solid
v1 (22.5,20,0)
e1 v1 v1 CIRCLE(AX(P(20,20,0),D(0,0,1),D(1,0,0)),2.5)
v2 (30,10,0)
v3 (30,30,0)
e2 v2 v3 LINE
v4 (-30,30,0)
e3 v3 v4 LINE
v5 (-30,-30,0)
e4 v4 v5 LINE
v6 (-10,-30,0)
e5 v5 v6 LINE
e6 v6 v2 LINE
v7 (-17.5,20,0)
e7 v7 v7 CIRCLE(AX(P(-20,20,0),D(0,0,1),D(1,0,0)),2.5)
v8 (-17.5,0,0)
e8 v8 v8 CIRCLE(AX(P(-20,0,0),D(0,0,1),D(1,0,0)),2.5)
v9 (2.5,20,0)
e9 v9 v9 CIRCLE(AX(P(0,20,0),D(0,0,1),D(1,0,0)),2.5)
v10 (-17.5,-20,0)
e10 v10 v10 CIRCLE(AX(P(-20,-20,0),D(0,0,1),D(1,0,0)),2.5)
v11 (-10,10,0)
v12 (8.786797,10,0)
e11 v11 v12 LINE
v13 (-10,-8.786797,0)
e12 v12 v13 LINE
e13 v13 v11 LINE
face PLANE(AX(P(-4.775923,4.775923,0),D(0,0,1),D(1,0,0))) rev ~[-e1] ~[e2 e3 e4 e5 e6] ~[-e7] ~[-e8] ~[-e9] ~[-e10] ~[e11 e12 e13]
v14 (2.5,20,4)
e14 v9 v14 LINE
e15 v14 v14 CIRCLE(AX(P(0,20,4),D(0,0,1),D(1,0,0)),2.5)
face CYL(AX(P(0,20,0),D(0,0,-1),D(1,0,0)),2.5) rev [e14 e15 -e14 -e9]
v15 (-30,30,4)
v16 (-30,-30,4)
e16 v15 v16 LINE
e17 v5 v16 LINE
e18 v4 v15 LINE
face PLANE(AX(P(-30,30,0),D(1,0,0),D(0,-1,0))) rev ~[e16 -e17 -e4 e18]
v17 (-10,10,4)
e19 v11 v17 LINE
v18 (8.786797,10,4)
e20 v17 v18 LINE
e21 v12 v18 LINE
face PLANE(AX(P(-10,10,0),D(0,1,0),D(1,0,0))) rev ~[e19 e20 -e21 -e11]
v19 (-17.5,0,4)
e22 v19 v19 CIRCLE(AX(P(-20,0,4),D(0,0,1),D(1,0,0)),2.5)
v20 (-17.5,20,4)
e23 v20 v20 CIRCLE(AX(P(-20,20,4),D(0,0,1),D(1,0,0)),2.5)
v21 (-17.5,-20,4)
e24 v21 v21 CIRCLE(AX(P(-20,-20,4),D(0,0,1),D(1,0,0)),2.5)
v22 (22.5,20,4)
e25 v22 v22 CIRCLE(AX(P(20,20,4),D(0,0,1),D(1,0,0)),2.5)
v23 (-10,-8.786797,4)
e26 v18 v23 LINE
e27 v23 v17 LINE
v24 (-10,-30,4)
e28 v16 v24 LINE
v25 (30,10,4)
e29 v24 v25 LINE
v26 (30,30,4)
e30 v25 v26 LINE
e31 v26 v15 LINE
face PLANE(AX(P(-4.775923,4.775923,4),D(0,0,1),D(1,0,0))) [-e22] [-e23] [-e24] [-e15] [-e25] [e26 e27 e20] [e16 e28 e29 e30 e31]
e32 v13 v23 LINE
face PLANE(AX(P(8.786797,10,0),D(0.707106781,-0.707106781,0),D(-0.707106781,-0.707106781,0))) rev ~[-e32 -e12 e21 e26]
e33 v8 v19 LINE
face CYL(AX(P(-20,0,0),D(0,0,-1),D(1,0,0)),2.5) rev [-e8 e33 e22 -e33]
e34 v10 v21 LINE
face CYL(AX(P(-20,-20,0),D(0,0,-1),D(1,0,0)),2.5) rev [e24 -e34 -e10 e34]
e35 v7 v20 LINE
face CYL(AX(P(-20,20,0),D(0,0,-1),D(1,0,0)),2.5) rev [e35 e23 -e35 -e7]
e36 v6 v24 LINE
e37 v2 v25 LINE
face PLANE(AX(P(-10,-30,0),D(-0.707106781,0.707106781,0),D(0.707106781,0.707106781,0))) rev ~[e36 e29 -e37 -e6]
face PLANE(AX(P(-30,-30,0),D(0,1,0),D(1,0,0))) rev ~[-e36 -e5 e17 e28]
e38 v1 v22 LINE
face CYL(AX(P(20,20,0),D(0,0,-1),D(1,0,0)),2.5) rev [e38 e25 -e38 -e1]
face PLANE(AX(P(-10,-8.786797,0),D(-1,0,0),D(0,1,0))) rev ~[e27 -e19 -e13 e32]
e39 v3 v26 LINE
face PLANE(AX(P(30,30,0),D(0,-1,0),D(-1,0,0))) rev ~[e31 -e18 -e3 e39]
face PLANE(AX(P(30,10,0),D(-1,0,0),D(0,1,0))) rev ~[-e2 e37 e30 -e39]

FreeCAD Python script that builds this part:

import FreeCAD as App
import Part
import Sketcher
from FreeCAD import Vector
Q = App.Units.Quantity

doc = App.newDocument("Part")
body = doc.addObject("PartDesign::Body", "Body")

sketch1 = body.newObject("Sketcher::SketchObject", "Sketch")
sketch1.AttachmentSupport = (doc.getObject("XY_Plane"), [""])
sketch1.MapMode = "FlatFace"
sketch1.addGeometry([
    Part.LineSegment(Vector(30, 30, 0), Vector(-30, 30, 0)),
    Part.LineSegment(Vector(-30, 30, 0), Vector(-30, -30, 0)),
    Part.LineSegment(Vector(-30, -30, 0), Vector(-10, -30, 0)),
    Part.LineSegment(Vector(-10, -30, 0), Vector(30, 10, 0)),
    Part.LineSegment(Vector(30, 10, 0), Vector(30, 30, 0)),
    Part.Circle(Vector(-20, -20, 0), Vector(0, 0, 1), 2.5),
    Part.Circle(Vector(-20, 0, 0), Vector(0, 0, 1), 2.5),
    Part.LineSegment(Vector(-10, 10, 0), Vector(8.8, 10, 0)),
    Part.LineSegment(Vector(8.8, 10, 0), Vector(-10, -8.8, 0)),
    Part.LineSegment(Vector(-10, -8.8, 0), Vector(-10, 10, 0)),
    Part.Circle(Vector(-20, 20, 0), Vector(0, 0, 1), 2.5),
    Part.Circle(Vector(0, 20, 0), Vector(0, 0, 1), 2.5),
    Part.Circle(Vector(20, 20, 0), Vector(0, 0, 1), 2.5),
], False)
sketch1.addConstraint([
    Sketcher.Constraint("Coincident", 0, 2, 1, 1),
    Sketcher.Constraint("Coincident", 1, 2, 2, 1),
    Sketcher.Constraint("Coincident", 2, 2, 3, 1),
    Sketcher.Constraint("Coincident", 3, 2, 4, 1),
    Sketcher.Constraint("Coincident", 4, 2, 0, 1),
    Sketcher.Constraint("Coincident", 7, 2, 8, 1),
    Sketcher.Constraint("Coincident", 8, 2, 9, 1),
    Sketcher.Constraint("Coincident", 9, 2, 7, 1),
    Sketcher.Constraint("Horizontal", 0),
    Sketcher.Constraint("Vertical", 1),
    Sketcher.Constraint("Horizontal", 2),
    Sketcher.Constraint("Vertical", 4),
    Sketcher.Constraint("Horizontal", 7),
    Sketcher.Constraint("Vertical", 9),
    Sketcher.Constraint("Equal", 5, 6),
    Sketcher.Constraint("Equal", 6, 10),
    Sketcher.Constraint("Equal", 10, 11),
    Sketcher.Constraint("Equal", 11, 12),
    Sketcher.Constraint("Symmetric", 5, 3, 12, 3, -1, 1),
    Sketcher.Constraint("Symmetric", 1, 2, 4, 2, -1, 1),
    Sketcher.Constraint("Symmetric", 10, 3, 12, 3, -2),
    Sketcher.Constraint("PointOnObject", 6, 3, -1),
    Sketcher.Constraint("PointOnObject", 11, 3, -2),
    Sketcher.Constraint("Parallel", 3, 8),
    Sketcher.Constraint("Horizontal", 10, 3, 11, 3),
    Sketcher.Constraint("Horizontal", 3, 2, 7, 2),
    Sketcher.Constraint("Vertical", 5, 3, 6, 3),
    Sketcher.Constraint("Vertical", 2, 2, 8, 2),
    Sketcher.Constraint("Equal", 0, 1),
    Sketcher.Constraint("Equal", 2, 4),
    Sketcher.Constraint("Diameter", 5, Q("5 mm")),
    Sketcher.Constraint("DistanceX", 0, 2, 0, 1, Q("60 mm")),
    Sketcher.Constraint("DistanceX", 2, 1, 2, 2, Q("20 mm")),
    Sketcher.Constraint("DistanceX", 5, 3, -1, 1, Q("20 mm")),
    Sketcher.Constraint("DistanceY", 5, 3, -1, 1, Q("20 mm")),
    Sketcher.Constraint("DistanceX", 7, 1, 7, 2, Q("18.786797 mm")),
])
pad1 = body.newObject("PartDesign::Pad", "Pad")
pad1.Profile = sketch1
pad1.Length = 4

doc.recompute()
